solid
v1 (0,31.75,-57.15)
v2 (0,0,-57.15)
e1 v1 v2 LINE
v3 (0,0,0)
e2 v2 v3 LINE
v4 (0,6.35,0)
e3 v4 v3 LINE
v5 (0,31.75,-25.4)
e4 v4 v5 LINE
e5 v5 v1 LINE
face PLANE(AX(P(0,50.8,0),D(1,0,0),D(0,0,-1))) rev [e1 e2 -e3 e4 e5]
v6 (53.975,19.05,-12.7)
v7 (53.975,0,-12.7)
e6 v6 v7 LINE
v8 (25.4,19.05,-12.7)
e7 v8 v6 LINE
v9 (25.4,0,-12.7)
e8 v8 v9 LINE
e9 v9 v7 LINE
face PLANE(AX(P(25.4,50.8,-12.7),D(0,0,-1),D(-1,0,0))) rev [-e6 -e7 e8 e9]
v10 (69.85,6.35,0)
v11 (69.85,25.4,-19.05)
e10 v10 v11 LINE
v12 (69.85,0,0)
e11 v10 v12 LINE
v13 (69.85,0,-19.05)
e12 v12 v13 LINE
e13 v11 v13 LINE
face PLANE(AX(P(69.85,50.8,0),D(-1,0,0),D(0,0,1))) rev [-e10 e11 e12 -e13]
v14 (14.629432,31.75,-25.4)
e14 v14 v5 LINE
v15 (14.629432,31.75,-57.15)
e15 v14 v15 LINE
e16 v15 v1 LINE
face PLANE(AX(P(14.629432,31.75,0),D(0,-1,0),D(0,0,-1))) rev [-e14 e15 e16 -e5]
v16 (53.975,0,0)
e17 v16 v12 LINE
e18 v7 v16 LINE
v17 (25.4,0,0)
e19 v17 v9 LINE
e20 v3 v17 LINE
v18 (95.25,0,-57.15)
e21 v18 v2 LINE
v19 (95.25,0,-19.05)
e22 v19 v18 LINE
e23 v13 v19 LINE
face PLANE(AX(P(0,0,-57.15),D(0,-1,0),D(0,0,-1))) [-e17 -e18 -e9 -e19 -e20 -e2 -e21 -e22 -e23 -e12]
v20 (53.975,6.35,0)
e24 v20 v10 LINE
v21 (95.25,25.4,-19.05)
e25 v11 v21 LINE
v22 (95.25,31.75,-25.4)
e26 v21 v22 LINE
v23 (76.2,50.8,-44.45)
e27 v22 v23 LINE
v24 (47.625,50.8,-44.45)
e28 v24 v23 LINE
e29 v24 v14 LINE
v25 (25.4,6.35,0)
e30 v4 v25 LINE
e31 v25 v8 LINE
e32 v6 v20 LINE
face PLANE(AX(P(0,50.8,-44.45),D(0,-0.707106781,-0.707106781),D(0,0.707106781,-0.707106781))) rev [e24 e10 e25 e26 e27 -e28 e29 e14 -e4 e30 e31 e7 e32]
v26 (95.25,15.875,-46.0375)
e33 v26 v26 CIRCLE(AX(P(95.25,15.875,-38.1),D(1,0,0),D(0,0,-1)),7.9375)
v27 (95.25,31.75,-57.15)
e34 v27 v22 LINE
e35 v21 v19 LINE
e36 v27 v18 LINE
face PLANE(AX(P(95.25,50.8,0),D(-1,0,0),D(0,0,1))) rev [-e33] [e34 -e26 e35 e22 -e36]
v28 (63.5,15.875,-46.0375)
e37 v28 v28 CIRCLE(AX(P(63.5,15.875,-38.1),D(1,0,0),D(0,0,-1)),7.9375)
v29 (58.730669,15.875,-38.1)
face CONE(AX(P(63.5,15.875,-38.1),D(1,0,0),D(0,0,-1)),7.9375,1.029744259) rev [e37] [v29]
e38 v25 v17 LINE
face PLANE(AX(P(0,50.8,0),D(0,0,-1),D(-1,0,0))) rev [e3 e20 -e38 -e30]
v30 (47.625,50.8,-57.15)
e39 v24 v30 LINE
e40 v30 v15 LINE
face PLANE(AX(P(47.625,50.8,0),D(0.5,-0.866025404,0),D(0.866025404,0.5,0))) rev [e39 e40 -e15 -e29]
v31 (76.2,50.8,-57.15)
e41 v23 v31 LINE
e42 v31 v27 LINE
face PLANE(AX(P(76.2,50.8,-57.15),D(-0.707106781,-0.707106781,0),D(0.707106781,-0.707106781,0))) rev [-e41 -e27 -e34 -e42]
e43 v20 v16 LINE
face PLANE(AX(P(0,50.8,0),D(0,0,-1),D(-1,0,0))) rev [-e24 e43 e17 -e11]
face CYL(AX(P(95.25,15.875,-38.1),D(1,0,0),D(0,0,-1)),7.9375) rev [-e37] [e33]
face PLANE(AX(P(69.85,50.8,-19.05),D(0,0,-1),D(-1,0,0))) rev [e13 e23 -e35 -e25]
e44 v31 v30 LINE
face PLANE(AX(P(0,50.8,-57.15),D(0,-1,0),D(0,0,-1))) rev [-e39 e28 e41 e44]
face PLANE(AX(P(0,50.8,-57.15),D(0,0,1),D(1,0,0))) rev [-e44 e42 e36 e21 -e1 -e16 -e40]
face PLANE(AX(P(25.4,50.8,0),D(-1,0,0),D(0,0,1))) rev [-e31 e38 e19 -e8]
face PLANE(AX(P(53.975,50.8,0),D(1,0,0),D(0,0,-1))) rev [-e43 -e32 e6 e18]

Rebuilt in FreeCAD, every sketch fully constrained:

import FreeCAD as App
import Part
import Sketcher
from FreeCAD import Vector
Q = App.Units.Quantity


def edges_at(feature, points):
    """Names of the edges that pass closest to the given points."""
    edges = feature.Shape.Edges
    near = lambda p: min(range(len(edges)), key=lambda i: edges[i].distToShape(Part.Vertex(*p))[0])
    return sorted({f"Edge{near(p) + 1}" for p in points})

doc = App.newDocument("Part")
params = doc.addObject("Spreadsheet::Sheet", "Params")
for row, (alias, value) in enumerate([
    ("sketch1_width", "3.75 in"),
    ("sketch1_height", "2.25 in"),
    ("pad1_length", "2 in"),
    ("sketch2_width", "1.75 in"),
    ("sketch3_width", "1 in"),
    ("sketch3_height", "0.5 in"),
    ("sketch3_height2", "0.75 in"),
    ("sketch3_width2", "1.125 in"),
    ("chamfer_size", "0.75 in"),
    ("sketch4_length", "1.5 in"),
    ("sketch4_width", "1.875 in"),
    ("sketch5_diameter", "0.625 in"),
    ("hole_diameter", "0.625 in"),
    ("hole_depth", "1.25 in"),
], start=1):
    params.set(f"A{row}", alias)
    params.set(f"B{row}", "=" + value)
    params.setAlias(f"B{row}", alias)

body = doc.addObject("PartDesign::Body", "Body")

# Sketch on XZ plane
sketch1 = body.newObject("Sketcher::SketchObject", "Sketch")
sketch1.AttachmentSupport = (doc.getObject("XZ_Plane"), [""])
sketch1.MapMode = "FlatFace"
sketch1.addGeometry(Part.LineSegment(Vector(0, -57, 0), Vector(0, 0, 0)), False)
sketch1.addGeometry(Part.LineSegment(Vector(0, 0, 0), Vector(95, 0, 0)), False)
sketch1.addGeometry(Part.LineSegment(Vector(95, 0, 0), Vector(95, -57, 0)), False)
sketch1.addGeometry(Part.LineSegment(Vector(95, -57, 0), Vector(0, -57, 0)), False)
sketch1.addConstraint(Sketcher.Constraint("Coincident", 0, 2, 1, 1))
sketch1.addConstraint(Sketcher.Constraint("Coincident", 1, 2, 2, 1))
sketch1.addConstraint(Sketcher.Constraint("Coincident", 2, 2, 3, 1))
sketch1.addConstraint(Sketcher.Constraint("Coincident", 3, 2, 0, 1))
sketch1.addConstraint(Sketcher.Constraint("Vertical", 0))
sketch1.addConstraint(Sketcher.Constraint("Horizontal", 1))
sketch1.addConstraint(Sketcher.Constraint("Vertical", 2))
sketch1.addConstraint(Sketcher.Constraint("Horizontal", 3))
sketch1.addConstraint(Sketcher.Constraint("Coincident", 0, 2, -1, 1))
sketch1.addConstraint(Sketcher.Constraint("DistanceX", 1, 1, 1, 2, Q("3.75 in")))
sketch1.addConstraint(Sketcher.Constraint("DistanceY", 0, 1, 0, 2, Q("2.25 in")))
sketch1.setExpression("Constraints[9]", "Params.sketch1_width")
sketch1.setExpression("Constraints[10]", "Params.sketch1_height")
pad1 = body.newObject("PartDesign::Pad", "Pad")
pad1.Profile = sketch1
pad1.setExpression("Length", "Params.pad1_length")
pad1.Reversed = True

# Sketch on YZ plane
sketch2 = body.newObject("Sketcher::SketchObject", "Sketch001")
sketch2.AttachmentSupport = (doc.getObject("YZ_Plane"), [""])
sketch2.MapMode = "FlatFace"
sketch2.AttachmentOffset = App.Placement(Vector(0, 0, 3.75 * 25.4), App.Rotation())
sketch2.addGeometry(Part.LineSegment(Vector(6, 0, 0), Vector(51, -44, 0)), False)
sketch2.addGeometry(Part.LineSegment(Vector(51, -44, 0), Vector(51, 0, 0)), False)
sketch2.addGeometry(Part.LineSegment(Vector(51, 0, 0), Vector(6, 0, 0)), False)
sketch2.addConstraint(Sketcher.Constraint("Coincident", 0, 2, 1, 1))
sketch2.addConstraint(Sketcher.Constraint("Coincident", 1, 2, 2, 1))
sketch2.addConstraint(Sketcher.Constraint("Coincident", 2, 2, 0, 1))
sketch2.addConstraint(Sketcher.Constraint("Vertical", 1))
sketch2.addConstraint(Sketcher.Constraint("Horizontal", 2))
sketch2.addConstraint(Sketcher.Constraint("PointOnObject", 1, 2, -1))
sketch2.addConstraint(Sketcher.Constraint("Equal", 2, 1))
sketch2.addConstraint(Sketcher.Constraint("DistanceX", -1, 1, 0, 2, Q("2 in")))
sketch2.addConstraint(Sketcher.Constraint("DistanceX", 2, 2, 2, 1, Q("1.75 in")))
sketch2.setExpression("Constraints[8]", "Params.sketch2_width")
pocket1 = body.newObject("PartDesign::Pocket", "Pocket")
pocket1.Profile = sketch2
pocket1.Type = "ThroughAll"

# Sketch on XZ plane
sketch3 = body.newObject("Sketcher::SketchObject", "Sketch002")
sketch3.AttachmentSupport = (doc.getObject("XZ_Plane"), [""])
sketch3.MapMode = "FlatFace"
sketch3.addGeometry(Part.LineSegment(Vector(70, 0, 0), Vector(70, -19, 0)), False)
sketch3.addGeometry(Part.LineSegment(Vector(70, -19, 0), Vector(95, -19, 0)), False)
sketch3.addGeometry(Part.LineSegment(Vector(95, -19, 0), Vector(95, 0, 0)), False)
sketch3.addGeometry(Part.LineSegment(Vector(95, 0, 0), Vector(70, 0, 0)), False)
sketch3.addGeometry(Part.LineSegment(Vector(25, 0, 0), Vector(25, -13, 0)), False)
sketch3.addGeometry(Part.LineSegment(Vector(25, -13, 0), Vector(54, -13, 0)), False)
sketch3.addGeometry(Part.LineSegment(Vector(54, -13, 0), Vector(54, 0, 0)), False)
sketch3.addGeometry(Part.LineSegment(Vector(54, 0, 0), Vector(25, 0, 0)), False)
sketch3.addConstraint(Sketcher.Constraint("Coincident", 0, 2, 1, 1))
sketch3.addConstraint(Sketcher.Constraint("Coincident", 1, 2, 2, 1))
sketch3.addConstraint(Sketcher.Constraint("Coincident", 2, 2, 3, 1))
sketch3.addConstraint(Sketcher.Constraint("Coincident", 3, 2, 0, 1))
sketch3.addConstraint(Sketcher.Constraint("Coincident", 4, 2, 5, 1))
sketch3.addConstraint(Sketcher.Constraint("Coincident", 5, 2, 6, 1))
sketch3.addConstraint(Sketcher.Constraint("Coincident", 6, 2, 7, 1))
sketch3.addConstraint(Sketcher.Constraint("Coincident", 7, 2, 4, 1))
sketch3.addConstraint(Sketcher.Constraint("Vertical", 0))
sketch3.addConstraint(Sketcher.Constraint("Horizontal", 1))
sketch3.addConstraint(Sketcher.Constraint("Vertical", 2))
sketch3.addConstraint(Sketcher.Constraint("Horizontal", 3))
sketch3.addConstraint(Sketcher.Constraint("Vertical", 4))
sketch3.addConstraint(Sketcher.Constraint("Horizontal", 5))
sketch3.addConstraint(Sketcher.Constraint("Vertical", 6))
sketch3.addConstraint(Sketcher.Constraint("Horizontal", 7))
sketch3.addConstraint(Sketcher.Constraint("PointOnObject", 2, 2, -1))
sketch3.addConstraint(Sketcher.Constraint("PointOnObject", 6, 2, -1))
sketch3.addConstraint(Sketcher.Constraint("DistanceX", 1, 1, 1, 2, Q("1 in")))
sketch3.addConstraint(Sketcher.Constraint("DistanceY", 4, 2, 4, 1, Q("0.5 in")))
sketch3.addConstraint(Sketcher.Constraint("DistanceX", -1, 1, 4, 2, Q("1 in")))
sketch3.addConstraint(Sketcher.Constraint("DistanceY", 0, 2, 0, 1, Q("0.75 in")))
sketch3.addConstraint(Sketcher.Constraint("DistanceX", 5, 1, 5, 2, Q("1.125 in")))
sketch3.addConstraint(Sketcher.Constraint("DistanceX", -1, 1, 0, 2, Q("2.75 in")))
sketch3.setExpression("Constraints[18]", "Params.sketch3_width")
sketch3.setExpression("Constraints[19]", "Params.sketch3_height")
sketch3.setExpression("Constraints[21]", "Params.sketch3_height2")
sketch3.setExpression("Constraints[22]", "Params.sketch3_width2")
pocket2 = body.newObject("PartDesign::Pocket", "Pocket001")
pocket2.Profile = sketch3
pocket2.Type = "ThroughAll"
doc.recompute()

chamfer = body.newObject("PartDesign::Chamfer", "Chamfer")
chamfer.Base = (pocket2, edges_at(pocket2, [(95.25, 50.8, -50.8)]))
chamfer.setExpression("Size", "Params.chamfer_size")

# Sketch on XY plane
sketch4 = body.newObject("Sketcher::SketchObject", "Sketch003")
sketch4.AttachmentSupport = (doc.getObject("XY_Plane"), [""])
sketch4.MapMode = "FlatFace"
sketch4.AttachmentOffset = App.Placement(Vector(0, 0, -2.25 * 25.4), App.Rotation())
sketch4.addGeometry(Part.LineSegment(Vector(0, 51, 0), Vector(48, 51, 0)), False)
sketch4.addGeometry(Part.LineSegment(Vector(48, 51, 0), Vector(15, 32, 0)), False)
sketch4.addGeometry(Part.LineSegment(Vector(15, 32, 0), Vector(0, 32, 0)), False)
sketch4.addGeometry(Part.LineSegment(Vector(0, 32, 0), Vector(0, 51, 0)), False)
sketch4.addConstraint(Sketcher.Constraint("Coincident", 0, 2, 1, 1))
sketch4.addConstraint(Sketcher.Constraint("Coincident", 1, 2, 2, 1))
sketch4.addConstraint(Sketcher.Constraint("Coincident", 2, 2, 3, 1))
sketch4.addConstraint(Sketcher.Constraint("Coincident", 3, 2, 0, 1))
sketch4.addConstraint(Sketcher.Constraint("Horizontal", 0))
sketch4.addConstraint(Sketcher.Constraint("Horizontal", 2))
sketch4.addConstraint(Sketcher.Constraint("Vertical", 3))
sketch4.addConstraint(Sketcher.Constraint("PointOnObject", 2, 2, -2))
sketch4.addConstraint(Sketcher.Constraint("DistanceY", -1, 1, 0, 2, Q("2 in")))
sketch4.addConstraint(Sketcher.Constraint("Angle", 1, Q("-150 deg")))
sketch4.addConstraint(Sketcher.Constraint("Distance", 1, Q("1.5 in")))
sketch4.addConstraint(Sketcher.Constraint("DistanceX", 0, 1, 0, 2, Q("1.875 in")))
sketch4.setExpression("Constraints[10]", "Params.sketch4_length")
sketch4.setExpression("Constraints[11]", "Params.sketch4_width")
pocket3 = body.newObject("PartDesign::Pocket", "Pocket002")
pocket3.Profile = sketch4
pocket3.Type = "ThroughAll"
pocket3.Reversed = True

# Sketch on YZ plane
sketch5 = body.newObject("Sketcher::SketchObject", "Sketch004")
sketch5.AttachmentSupport = (doc.getObject("YZ_Plane"), [""])
sketch5.MapMode = "FlatFace"
sketch5.AttachmentOffset = App.Placement(Vector(0, 0, 3.75 * 25.4), App.Rotation())
sketch5.addGeometry(Part.Circle(Vector(16, -38, 0), Vector(0, 0, 1), 8), False)
sketch5.addConstraint(Sketcher.Constraint("Diameter", 0, Q("0.625 in")))
sketch5.addConstraint(Sketcher.Constraint("DistanceY", 0, 3, -1, 1, Q("1.5 in")))
sketch5.addConstraint(Sketcher.Constraint("DistanceX", -1, 1, 0, 3, Q("0.625 in")))
sketch5.setExpression("Constraints[0]", "Params.sketch5_diameter")
doc.recompute()
hole = body.newObject("PartDesign::Hole", "Hole")
hole.Profile = sketch5
hole.ThreadType = "None"
hole.setExpression("Diameter", "Params.hole_diameter")
hole.DepthType = "Dimension"
hole.setExpression("Depth", "Params.hole_depth")
hole.DrillPoint = "Angled"
hole.DrillPointAngle = 118

doc.recompute()
